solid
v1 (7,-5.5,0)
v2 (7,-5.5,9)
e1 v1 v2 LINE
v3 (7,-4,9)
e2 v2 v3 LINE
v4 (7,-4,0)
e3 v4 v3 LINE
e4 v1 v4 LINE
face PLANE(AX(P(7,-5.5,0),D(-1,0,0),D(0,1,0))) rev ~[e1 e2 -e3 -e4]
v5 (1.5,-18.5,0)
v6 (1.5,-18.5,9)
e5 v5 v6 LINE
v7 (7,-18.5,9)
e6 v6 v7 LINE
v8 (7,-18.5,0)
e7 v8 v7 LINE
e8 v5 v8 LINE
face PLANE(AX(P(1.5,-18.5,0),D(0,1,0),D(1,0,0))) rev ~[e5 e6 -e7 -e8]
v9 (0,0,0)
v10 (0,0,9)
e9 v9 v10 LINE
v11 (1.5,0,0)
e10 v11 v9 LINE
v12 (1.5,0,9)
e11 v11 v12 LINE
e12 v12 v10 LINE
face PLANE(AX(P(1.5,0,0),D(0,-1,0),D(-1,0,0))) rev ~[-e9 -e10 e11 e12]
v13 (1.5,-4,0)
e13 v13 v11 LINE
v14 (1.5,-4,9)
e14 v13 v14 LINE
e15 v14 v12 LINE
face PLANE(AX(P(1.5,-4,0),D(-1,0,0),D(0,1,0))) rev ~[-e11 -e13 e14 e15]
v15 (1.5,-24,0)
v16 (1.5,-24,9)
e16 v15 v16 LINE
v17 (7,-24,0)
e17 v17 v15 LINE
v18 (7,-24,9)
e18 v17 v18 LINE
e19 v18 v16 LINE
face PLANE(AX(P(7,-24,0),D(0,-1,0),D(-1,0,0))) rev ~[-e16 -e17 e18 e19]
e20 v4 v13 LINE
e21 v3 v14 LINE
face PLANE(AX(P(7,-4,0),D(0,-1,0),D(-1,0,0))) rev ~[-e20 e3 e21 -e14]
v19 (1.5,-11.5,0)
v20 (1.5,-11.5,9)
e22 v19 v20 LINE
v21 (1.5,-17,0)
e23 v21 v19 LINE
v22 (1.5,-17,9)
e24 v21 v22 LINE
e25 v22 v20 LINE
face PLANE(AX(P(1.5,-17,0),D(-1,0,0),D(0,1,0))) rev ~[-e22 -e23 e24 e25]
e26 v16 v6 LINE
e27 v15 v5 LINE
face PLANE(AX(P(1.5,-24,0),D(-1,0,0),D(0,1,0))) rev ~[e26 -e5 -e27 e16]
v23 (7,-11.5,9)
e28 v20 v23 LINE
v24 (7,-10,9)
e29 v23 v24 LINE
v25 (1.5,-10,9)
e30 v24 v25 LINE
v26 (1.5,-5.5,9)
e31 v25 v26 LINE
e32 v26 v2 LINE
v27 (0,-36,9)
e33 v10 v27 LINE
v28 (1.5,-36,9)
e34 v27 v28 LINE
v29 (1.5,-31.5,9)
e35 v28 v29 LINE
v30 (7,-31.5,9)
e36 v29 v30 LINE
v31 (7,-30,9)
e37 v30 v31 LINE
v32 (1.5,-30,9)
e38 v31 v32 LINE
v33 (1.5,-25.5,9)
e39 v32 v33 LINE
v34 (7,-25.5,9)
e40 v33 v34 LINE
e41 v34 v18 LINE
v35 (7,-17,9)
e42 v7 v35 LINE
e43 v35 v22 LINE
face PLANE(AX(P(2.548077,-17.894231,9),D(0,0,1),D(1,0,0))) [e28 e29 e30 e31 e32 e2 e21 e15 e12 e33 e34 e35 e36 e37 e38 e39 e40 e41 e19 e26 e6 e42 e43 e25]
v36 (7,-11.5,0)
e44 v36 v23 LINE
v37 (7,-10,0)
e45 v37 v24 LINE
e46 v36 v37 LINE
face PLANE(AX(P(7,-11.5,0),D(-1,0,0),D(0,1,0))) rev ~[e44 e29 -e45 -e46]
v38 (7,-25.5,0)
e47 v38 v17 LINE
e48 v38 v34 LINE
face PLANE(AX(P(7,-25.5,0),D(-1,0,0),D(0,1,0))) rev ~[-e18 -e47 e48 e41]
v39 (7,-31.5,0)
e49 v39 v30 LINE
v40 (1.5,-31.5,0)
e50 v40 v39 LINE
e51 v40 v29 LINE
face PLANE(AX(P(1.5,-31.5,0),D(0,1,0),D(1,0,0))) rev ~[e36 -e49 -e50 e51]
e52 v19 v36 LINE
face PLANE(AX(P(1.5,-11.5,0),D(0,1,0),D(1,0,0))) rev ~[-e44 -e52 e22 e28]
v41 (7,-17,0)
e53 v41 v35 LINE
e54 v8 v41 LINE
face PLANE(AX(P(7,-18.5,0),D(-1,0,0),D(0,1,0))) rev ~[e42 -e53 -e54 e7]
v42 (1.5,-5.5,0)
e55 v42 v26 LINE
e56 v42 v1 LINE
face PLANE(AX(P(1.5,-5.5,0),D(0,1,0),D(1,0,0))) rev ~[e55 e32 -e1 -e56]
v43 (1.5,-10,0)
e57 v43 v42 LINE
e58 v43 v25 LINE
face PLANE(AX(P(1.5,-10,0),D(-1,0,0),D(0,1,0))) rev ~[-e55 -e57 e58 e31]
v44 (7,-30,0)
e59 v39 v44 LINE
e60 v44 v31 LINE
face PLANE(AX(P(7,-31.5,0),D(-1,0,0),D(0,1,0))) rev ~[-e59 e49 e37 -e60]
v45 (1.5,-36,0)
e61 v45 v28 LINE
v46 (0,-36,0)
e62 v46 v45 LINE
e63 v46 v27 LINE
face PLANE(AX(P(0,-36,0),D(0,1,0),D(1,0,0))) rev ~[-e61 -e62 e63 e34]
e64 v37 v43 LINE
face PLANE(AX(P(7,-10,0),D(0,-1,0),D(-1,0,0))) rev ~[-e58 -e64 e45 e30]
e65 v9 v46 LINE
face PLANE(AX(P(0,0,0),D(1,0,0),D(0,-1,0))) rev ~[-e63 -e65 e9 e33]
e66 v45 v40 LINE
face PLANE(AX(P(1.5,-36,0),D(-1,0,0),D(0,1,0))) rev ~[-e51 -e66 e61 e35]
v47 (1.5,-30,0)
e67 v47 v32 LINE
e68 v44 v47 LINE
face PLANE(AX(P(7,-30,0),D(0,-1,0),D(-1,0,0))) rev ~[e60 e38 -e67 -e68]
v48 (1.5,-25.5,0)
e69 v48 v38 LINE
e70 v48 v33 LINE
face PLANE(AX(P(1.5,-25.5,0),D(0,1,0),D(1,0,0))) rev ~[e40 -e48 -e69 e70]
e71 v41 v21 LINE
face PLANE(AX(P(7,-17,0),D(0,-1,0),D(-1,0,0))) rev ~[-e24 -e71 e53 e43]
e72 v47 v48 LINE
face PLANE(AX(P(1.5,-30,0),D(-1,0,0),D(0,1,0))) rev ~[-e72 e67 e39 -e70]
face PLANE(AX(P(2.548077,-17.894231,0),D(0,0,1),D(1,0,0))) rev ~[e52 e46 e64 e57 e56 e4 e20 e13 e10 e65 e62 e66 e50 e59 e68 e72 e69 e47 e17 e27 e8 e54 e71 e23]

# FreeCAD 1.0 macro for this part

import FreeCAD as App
import Part
import Sketcher
from FreeCAD import Vector


def add_polygon(sketch, points):
    """Adds a closed chain of lines whose ends are joined by coincident constraints."""
    first, n = sketch.GeometryCount, len(points)
    for a, b in zip(points, points[1:] + points[:1]):
        sketch.addGeometry(Part.LineSegment(App.Vector(*a, 0), App.Vector(*b, 0)), False)
    for i in range(n):
        sketch.addConstraint(Sketcher.Constraint("Coincident", first + i, 2, first + (i + 1) % n, 1))

doc = App.newDocument("Part")
body = doc.addObject("PartDesign::Body", "Body")

# Sketch on XY plane
sketch1 = body.newObject("Sketcher::SketchObject", "Sketch")
sketch1.AttachmentSupport = (doc.getObject("XY_Plane"), [""])
sketch1.MapMode = "FlatFace"
add_polygon(sketch1, [(1.5, 0), (0, 0), (0, -36), (1.5, -36), (1.5, -31.5), (7, -31.5), (7, -30), (1.5, -30), (1.5, -25.5), (7, -25.5), (7, -24), (1.5, -24), (1.5, -18.5), (7, -18.5), (7, -17), (1.5, -17), (1.5, -11.5), (7, -11.5), (7, -10), (1.5, -10), (1.5, -5.5), (7, -5.5), (7, -4), (1.5, -4)])  # lines 0-23
sketch1.addConstraint([
    Sketcher.Constraint("Horizontal", 0),
    Sketcher.Constraint("Vertical", 1),
    Sketcher.Constraint("Horizontal", 2),
    Sketcher.Constraint("Vertical", 3),
    Sketcher.Constraint("Horizontal", 4),
    Sketcher.Constraint("Vertical", 5),
    Sketcher.Constraint("Horizontal", 6),
    Sketcher.Constraint("Vertical", 7),
    Sketcher.Constraint("Horizontal", 8),
    Sketcher.Constraint("Vertical", 9),
    Sketcher.Constraint("Horizontal", 10),
    Sketcher.Constraint("Vertical", 11),
    Sketcher.Constraint("Horizontal", 12),
    Sketcher.Constraint("Vertical", 13),
    Sketcher.Constraint("Horizontal", 14),
    Sketcher.Constraint("Vertical", 15),
    Sketcher.Constraint("Horizontal", 16),
    Sketcher.Constraint("Vertical", 17),
    Sketcher.Constraint("Horizontal", 18),
    Sketcher.Constraint("Vertical", 19),
    Sketcher.Constraint("Horizontal", 20),
    Sketcher.Constraint("Vertical", 21),
    Sketcher.Constraint("Horizontal", 22),
    Sketcher.Constraint("Vertical", 23),
    Sketcher.Constraint("Coincident", 0, 2, -1, 1),
    Sketcher.Constraint("Vertical", 3, 2, 6, 2),
    Sketcher.Constraint("Vertical", 5, 2, 8, 2),
    Sketcher.Constraint("Vertical", 7, 2, 10, 2),
    Sketcher.Constraint("Vertical", 9, 2, 12, 2),
    Sketcher.Constraint("Vertical", 11, 2, 14, 2),
    Sketcher.Constraint("Vertical", 13, 2, 16, 2),
    Sketcher.Constraint("Vertical", 15, 2, 18, 2),
    Sketcher.Constraint("Vertical", 17, 2, 20, 2),
    Sketcher.Constraint("Vertical", 19, 2, 22, 2),
    Sketcher.Constraint("Equal", 2, 5),
    Sketcher.Constraint("Equal", 3, 7),
    Sketcher.Constraint("Equal", 5, 9),
    Sketcher.Constraint("Equal", 22, 11),
    Sketcher.Constraint("Equal", 9, 13),
    Sketcher.Constraint("Equal", 11, 15),
    Sketcher.Constraint("Equal", 13, 17),
    Sketcher.Constraint("Equal", 7, 19),
    Sketcher.Constraint("Equal", 17, 21),
    Sketcher.Constraint("DistanceY", 1, 2, 1, 1, 36.0),
    Sketcher.Constraint("DistanceY", 23, 1, 23, 2, 4.0),
    Sketcher.Constraint("DistanceX", 0, 2, 0, 1, 1.5),
    Sketcher.Constraint("DistanceX", 4, 1, 4, 2, 5.5),
])
pad1 = body.newObject("PartDesign::Pad", "Pad")
pad1.Profile = sketch1
pad1.Length = 9

doc.recompute()
